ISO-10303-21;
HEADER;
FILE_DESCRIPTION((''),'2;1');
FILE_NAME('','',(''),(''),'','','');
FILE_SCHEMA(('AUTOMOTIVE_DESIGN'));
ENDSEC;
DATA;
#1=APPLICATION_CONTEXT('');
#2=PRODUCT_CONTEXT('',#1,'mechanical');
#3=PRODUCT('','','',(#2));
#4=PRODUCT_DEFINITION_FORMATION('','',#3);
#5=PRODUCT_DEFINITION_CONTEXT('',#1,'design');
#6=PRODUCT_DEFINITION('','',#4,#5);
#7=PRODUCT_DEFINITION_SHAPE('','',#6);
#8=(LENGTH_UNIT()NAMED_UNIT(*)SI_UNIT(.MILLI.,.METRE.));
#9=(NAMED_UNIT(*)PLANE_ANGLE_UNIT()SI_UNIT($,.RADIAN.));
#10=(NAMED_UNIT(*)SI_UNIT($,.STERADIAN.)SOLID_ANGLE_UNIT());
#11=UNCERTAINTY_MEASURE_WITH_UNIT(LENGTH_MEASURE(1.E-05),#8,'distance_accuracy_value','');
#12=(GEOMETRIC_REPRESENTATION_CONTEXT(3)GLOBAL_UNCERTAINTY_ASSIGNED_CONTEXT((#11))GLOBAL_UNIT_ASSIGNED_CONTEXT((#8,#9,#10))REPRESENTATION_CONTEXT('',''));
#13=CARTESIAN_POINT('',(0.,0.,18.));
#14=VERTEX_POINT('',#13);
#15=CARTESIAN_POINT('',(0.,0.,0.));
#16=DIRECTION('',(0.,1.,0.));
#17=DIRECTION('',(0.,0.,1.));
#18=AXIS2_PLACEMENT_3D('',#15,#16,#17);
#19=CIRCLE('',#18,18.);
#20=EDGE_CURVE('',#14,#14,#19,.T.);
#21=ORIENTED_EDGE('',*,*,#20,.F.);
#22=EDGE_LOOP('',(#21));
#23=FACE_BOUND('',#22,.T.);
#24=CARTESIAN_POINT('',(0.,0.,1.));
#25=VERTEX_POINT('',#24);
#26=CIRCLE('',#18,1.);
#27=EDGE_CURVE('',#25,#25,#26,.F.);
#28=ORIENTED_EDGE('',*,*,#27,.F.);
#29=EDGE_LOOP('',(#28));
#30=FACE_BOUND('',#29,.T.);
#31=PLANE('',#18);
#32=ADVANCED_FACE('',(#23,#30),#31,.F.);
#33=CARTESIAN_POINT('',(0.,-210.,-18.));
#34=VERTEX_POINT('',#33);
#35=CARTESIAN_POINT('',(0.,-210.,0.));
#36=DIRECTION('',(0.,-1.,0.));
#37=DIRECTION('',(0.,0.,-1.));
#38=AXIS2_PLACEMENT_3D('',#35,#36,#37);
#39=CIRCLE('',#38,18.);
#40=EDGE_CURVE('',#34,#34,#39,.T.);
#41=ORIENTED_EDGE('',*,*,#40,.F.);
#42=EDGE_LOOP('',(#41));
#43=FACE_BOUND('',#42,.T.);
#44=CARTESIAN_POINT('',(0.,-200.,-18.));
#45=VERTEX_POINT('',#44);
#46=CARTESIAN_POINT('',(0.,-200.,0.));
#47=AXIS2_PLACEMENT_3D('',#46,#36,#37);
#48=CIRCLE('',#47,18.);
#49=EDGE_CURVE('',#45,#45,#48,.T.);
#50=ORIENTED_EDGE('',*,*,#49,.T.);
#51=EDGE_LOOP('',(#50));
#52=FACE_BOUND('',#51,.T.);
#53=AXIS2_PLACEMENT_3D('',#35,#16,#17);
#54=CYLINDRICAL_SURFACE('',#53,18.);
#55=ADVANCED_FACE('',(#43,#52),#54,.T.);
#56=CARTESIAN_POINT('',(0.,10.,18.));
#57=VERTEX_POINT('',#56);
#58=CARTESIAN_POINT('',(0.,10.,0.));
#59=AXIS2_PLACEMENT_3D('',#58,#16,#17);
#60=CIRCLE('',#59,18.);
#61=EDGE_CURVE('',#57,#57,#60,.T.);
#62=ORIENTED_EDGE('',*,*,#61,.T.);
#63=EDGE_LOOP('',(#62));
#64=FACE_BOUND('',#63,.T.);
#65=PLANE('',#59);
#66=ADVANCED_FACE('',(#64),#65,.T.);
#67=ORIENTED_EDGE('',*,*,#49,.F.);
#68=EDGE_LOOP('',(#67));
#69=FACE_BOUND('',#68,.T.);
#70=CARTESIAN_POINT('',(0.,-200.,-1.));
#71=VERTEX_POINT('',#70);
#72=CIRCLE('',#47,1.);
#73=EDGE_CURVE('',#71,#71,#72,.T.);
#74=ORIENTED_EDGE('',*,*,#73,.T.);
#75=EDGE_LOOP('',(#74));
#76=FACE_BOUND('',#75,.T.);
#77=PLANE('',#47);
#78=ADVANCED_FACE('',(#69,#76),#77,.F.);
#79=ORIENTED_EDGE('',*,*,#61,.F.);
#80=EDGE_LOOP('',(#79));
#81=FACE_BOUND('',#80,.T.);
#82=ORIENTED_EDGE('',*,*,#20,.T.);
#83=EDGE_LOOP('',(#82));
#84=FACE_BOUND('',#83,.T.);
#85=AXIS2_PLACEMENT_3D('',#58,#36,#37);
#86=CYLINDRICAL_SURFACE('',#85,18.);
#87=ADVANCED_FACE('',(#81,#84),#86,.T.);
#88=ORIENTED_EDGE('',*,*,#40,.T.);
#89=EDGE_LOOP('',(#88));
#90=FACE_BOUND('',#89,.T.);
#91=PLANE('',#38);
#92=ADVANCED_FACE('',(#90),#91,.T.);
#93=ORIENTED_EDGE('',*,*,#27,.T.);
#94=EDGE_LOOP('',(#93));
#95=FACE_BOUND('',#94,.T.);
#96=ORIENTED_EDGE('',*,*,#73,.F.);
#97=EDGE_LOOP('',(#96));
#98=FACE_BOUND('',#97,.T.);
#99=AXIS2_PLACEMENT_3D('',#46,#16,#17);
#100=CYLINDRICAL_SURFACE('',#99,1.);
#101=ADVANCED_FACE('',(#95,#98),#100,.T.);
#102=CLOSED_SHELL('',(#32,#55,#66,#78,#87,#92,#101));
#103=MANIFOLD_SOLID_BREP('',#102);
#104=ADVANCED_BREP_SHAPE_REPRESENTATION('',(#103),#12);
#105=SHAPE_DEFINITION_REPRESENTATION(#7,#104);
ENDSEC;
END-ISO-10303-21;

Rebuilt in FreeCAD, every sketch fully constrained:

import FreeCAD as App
import Part
import Sketcher

V = App.Vector

doc = App.newDocument("Part")
body = doc.addObject("PartDesign::Body", "Body")

# Sketch on XZ plane
sketch1 = doc.addObject("Sketcher::SketchObject", "Sketch")
body.addObject(sketch1)
sketch1.AttachmentSupport = (doc.XZ_Plane, [""])
sketch1.MapMode = "FlatFace"
sketch1.addGeometry(Part.Circle(V(0, 0, 0), V(0, 0, 1), 18), False)
sketch1.addConstraint(Sketcher.Constraint("Coincident", 0, 3, -1, 1))
sketch1.addConstraint(Sketcher.Constraint("Diameter", 0, 36.0))
pad1 = doc.addObject("PartDesign::Pad", "Pad")
body.addObject(pad1)
pad1.Profile = sketch1
pad1.Length = 10
pad1.Reversed = True

# Sketch on XZ plane
sketch2 = doc.addObject("Sketcher::SketchObject", "Sketch001")
body.addObject(sketch2)
sketch2.AttachmentSupport = (doc.XZ_Plane, [""])
sketch2.MapMode = "FlatFace"
sketch2.addGeometry(Part.Circle(V(0, 0, 0), V(0, 0, 1), 1), False)
sketch2.addConstraint(Sketcher.Constraint("Coincident", 0, 3, -1, 1))
sketch2.addConstraint(Sketcher.Constraint("Diameter", 0, 2.0))
pad2 = doc.addObject("PartDesign::Pad", "Pad001")
body.addObject(pad2)
pad2.Profile = sketch2
pad2.Length = 200

# Sketch on XZ plane
sketch3 = doc.addObject("Sketcher::SketchObject", "Sketch002")
body.addObject(sketch3)
sketch3.AttachmentSupport = (doc.XZ_Plane, [""])
sketch3.MapMode = "FlatFace"
sketch3.AttachmentOffset = App.Placement(V(0, 0, 210), App.Rotation())
sketch3.addGeometry(Part.Circle(V(0, 0, 0), V(0, 0, 1), 18), False)
sketch3.addConstraint(Sketcher.Constraint("Coincident", 0, 3, -1, 1))
sketch3.addConstraint(Sketcher.Constraint("Diameter", 0, 36.0))
pad3 = doc.addObject("PartDesign::Pad", "Pad002")
body.addObject(pad3)
pad3.Profile = sketch3
pad3.Length = 10
pad3.Reversed = True

doc.recompute()
